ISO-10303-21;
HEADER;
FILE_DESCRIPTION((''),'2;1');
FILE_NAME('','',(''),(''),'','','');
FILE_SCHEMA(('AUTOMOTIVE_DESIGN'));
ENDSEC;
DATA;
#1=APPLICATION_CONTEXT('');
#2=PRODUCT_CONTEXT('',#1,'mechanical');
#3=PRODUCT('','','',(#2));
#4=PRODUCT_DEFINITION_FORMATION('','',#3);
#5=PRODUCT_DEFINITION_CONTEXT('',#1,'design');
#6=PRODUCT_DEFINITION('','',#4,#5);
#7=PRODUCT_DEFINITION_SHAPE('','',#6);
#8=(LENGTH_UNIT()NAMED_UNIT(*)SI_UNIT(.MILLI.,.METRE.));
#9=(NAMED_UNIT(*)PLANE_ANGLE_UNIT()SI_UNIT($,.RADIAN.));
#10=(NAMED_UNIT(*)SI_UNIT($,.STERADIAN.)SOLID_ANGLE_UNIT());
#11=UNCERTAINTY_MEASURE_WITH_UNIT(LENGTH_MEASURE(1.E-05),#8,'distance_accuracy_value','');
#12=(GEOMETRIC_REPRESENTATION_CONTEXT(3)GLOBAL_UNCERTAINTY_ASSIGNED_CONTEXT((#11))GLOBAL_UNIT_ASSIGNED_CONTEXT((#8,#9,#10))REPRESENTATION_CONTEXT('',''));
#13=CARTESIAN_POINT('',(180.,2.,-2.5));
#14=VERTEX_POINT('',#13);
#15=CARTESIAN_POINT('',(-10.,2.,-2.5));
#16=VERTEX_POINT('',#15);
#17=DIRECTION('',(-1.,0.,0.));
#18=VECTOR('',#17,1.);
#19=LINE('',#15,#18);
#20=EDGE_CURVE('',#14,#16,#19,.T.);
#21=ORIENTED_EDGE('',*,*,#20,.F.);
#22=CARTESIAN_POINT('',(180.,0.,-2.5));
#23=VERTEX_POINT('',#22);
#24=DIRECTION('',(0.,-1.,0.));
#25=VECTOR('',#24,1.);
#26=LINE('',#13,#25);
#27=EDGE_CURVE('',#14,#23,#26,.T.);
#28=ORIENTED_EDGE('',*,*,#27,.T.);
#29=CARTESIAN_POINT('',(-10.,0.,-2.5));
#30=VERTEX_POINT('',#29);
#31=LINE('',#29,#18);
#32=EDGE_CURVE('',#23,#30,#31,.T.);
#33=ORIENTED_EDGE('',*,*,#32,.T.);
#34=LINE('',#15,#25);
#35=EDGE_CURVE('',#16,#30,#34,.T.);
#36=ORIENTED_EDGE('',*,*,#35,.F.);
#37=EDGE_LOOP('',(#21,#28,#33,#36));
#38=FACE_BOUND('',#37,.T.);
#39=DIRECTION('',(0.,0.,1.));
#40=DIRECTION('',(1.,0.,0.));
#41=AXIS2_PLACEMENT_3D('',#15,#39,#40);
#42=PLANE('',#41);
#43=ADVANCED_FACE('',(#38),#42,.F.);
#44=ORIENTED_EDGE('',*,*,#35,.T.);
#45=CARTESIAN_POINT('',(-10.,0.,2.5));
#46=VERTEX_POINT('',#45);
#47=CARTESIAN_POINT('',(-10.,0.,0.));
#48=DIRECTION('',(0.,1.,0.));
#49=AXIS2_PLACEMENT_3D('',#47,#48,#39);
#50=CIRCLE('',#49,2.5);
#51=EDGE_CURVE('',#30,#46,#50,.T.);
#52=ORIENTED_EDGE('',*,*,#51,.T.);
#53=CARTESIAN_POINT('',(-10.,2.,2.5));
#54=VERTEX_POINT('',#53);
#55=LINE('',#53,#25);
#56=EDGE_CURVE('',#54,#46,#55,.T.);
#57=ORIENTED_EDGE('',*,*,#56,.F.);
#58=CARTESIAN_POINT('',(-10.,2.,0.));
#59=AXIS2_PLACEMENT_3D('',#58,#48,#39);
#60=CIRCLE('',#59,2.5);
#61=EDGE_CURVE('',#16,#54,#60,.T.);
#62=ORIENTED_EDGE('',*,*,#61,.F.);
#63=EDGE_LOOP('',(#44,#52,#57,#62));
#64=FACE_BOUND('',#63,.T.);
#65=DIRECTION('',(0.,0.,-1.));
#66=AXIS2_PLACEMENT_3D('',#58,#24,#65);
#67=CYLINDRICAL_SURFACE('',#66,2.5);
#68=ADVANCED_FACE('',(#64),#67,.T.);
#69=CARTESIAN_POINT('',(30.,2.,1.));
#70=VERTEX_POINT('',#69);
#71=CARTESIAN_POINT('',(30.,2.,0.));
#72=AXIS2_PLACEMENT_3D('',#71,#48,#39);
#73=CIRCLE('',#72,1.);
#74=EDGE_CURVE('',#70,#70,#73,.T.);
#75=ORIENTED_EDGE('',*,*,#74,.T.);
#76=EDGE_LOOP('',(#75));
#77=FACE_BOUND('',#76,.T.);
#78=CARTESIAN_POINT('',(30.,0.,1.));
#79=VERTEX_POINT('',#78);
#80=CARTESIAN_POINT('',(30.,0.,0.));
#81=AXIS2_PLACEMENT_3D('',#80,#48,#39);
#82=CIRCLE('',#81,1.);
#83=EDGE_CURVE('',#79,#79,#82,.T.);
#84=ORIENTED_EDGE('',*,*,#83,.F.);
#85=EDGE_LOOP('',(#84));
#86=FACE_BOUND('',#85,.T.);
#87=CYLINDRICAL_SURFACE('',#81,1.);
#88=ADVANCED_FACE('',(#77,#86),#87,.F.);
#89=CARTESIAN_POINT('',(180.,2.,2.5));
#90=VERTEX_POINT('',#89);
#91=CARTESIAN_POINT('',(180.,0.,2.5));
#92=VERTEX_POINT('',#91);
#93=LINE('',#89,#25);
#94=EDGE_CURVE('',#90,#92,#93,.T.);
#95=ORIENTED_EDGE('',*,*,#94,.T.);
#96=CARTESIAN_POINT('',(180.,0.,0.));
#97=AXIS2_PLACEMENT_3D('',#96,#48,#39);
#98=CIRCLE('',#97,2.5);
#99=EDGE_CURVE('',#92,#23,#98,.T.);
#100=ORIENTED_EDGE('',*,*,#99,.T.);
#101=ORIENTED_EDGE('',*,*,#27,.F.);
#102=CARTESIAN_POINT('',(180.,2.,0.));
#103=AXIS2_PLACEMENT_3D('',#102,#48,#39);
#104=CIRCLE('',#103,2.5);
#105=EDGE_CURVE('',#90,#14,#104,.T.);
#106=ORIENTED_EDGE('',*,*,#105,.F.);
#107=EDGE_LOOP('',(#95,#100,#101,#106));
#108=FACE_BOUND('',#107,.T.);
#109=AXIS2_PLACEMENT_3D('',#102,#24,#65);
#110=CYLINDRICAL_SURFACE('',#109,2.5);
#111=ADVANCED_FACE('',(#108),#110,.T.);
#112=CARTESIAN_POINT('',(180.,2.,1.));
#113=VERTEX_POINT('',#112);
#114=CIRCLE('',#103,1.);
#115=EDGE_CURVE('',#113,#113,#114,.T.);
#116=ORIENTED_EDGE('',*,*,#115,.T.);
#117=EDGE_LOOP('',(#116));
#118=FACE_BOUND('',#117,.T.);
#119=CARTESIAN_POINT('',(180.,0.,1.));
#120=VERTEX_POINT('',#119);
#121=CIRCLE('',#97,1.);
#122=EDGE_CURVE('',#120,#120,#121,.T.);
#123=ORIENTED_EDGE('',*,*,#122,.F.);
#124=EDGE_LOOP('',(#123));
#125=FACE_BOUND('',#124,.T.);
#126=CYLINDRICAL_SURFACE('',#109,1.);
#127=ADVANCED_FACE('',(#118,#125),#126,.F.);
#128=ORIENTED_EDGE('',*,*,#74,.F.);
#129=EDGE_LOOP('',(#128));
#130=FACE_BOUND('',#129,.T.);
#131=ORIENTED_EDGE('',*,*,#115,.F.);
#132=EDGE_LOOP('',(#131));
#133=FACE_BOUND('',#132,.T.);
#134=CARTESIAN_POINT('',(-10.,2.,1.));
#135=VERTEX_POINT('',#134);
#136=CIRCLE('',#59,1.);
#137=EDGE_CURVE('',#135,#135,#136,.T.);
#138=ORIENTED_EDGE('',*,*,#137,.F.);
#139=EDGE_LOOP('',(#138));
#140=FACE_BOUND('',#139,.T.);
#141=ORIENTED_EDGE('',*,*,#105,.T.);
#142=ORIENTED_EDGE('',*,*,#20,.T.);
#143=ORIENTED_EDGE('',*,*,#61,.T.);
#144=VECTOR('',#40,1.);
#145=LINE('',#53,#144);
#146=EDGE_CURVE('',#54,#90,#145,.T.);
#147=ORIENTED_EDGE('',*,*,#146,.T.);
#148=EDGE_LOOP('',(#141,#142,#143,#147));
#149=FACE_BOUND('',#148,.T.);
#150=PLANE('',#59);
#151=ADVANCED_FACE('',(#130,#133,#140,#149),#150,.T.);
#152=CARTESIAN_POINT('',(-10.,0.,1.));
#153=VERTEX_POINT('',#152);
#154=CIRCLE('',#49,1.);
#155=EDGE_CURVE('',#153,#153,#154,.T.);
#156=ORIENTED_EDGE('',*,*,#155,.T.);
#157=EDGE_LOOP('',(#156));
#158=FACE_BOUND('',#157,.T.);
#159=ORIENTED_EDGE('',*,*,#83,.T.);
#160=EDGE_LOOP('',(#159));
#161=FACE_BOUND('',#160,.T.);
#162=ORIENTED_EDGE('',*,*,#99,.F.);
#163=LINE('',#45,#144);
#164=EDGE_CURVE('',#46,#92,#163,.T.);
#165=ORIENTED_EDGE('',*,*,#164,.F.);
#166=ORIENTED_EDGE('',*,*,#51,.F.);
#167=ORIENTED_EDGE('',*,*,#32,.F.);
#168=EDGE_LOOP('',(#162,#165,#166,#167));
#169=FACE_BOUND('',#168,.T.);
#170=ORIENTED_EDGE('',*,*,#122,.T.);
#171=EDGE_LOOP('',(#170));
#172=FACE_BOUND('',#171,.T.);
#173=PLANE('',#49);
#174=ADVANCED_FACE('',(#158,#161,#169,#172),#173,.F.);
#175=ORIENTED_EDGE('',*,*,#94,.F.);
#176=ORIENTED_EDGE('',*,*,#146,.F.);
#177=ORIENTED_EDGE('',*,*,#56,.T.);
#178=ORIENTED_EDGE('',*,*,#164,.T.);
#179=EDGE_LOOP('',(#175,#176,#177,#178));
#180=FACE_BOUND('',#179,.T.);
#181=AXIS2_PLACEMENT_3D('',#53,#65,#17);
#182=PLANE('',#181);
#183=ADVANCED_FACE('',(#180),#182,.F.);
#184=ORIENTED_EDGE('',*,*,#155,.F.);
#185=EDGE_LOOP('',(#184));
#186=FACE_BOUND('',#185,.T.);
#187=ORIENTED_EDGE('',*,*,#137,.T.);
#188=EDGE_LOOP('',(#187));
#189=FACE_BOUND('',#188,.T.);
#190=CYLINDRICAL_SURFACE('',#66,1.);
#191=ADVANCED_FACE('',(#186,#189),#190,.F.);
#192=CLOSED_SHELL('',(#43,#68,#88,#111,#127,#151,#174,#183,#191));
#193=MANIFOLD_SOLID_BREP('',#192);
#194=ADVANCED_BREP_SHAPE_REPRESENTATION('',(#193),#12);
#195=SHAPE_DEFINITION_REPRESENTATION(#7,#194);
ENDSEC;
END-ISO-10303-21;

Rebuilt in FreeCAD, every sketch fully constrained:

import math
import FreeCAD as App
import Part
import Sketcher

V = App.Vector

doc = App.newDocument("Part")
body = doc.addObject("PartDesign::Body", "Body")

# Sketch on XZ plane
sketch1 = doc.addObject("Sketcher::SketchObject", "Sketch")
body.addObject(sketch1)
sketch1.AttachmentSupport = (doc.XZ_Plane, [""])
sketch1.MapMode = "FlatFace"
sketch1.addGeometry([
    Part.LineSegment(V(180, -2.5, 0), V(-10, -2.5, 0)),  # 0
    Part.ArcOfCircle(Part.Circle(V(-10, 0, 0), V(0, 0, 1), 2.5), math.radians(90), math.radians(270)),  # 1
    Part.LineSegment(V(-10, 2.5, 0), V(180, 2.5, 0)),  # 2
    Part.ArcOfCircle(Part.Circle(V(180, 0, 0), V(0, 0, 1), 2.5), math.radians(-90), math.radians(90)),  # 3
    Part.Circle(V(180, 0, 0), V(0, 0, 1), 1),  # 4
    Part.Circle(V(-10, 0, 0), V(0, 0, 1), 1),  # 5
], False)
sketch1.addConstraint([
    Sketcher.Constraint("Tangent", 0, 2, 1, 2),
    Sketcher.Constraint("Tangent", 1, 1, 2, 1),
    Sketcher.Constraint("Tangent", 2, 2, 3, 2),
    Sketcher.Constraint("Tangent", 3, 1, 0, 1),
    Sketcher.Constraint("Horizontal", 0),
    Sketcher.Constraint("Horizontal", 2),
    Sketcher.Constraint("Coincident", 4, 3, 3, 3),
    Sketcher.Constraint("Coincident", 5, 3, 1, 3),
    Sketcher.Constraint("Equal", 4, 5),
    Sketcher.Constraint("PointOnObject", 1, 3, -1),
    Sketcher.Constraint("Diameter", 4, 2.0),
    Sketcher.Constraint("Radius", 1, 2.5),
    Sketcher.Constraint("DistanceX", 0, 2, 0, 1, 190.0),
    Sketcher.Constraint("DistanceX", 1, 3, -1, 1, 10.0),
])
pad1 = doc.addObject("PartDesign::Pad", "Pad")
body.addObject(pad1)
pad1.Profile = sketch1
pad1.Length = 2
pad1.Reversed = True

# Sketch on XZ plane
sketch2 = doc.addObject("Sketcher::SketchObject", "Sketch001")
body.addObject(sketch2)
sketch2.AttachmentSupport = (doc.XZ_Plane, [""])
sketch2.MapMode = "FlatFace"
sketch2.AttachmentOffset = App.Placement(V(0, 0, -2), App.Rotation())
sketch2.addGeometry(Part.Circle(V(30, 0, 0), V(0, 0, 1), 1), False)
sketch2.addConstraint([
    Sketcher.Constraint("PointOnObject", 0, 3, -1),
    Sketcher.Constraint("Diameter", 0, 2.0),
    Sketcher.Constraint("DistanceX", -1, 1, 0, 3, 30.0),
])
pocket1 = doc.addObject("PartDesign::Pocket", "Pocket")
body.addObject(pocket1)
pocket1.Profile = sketch2
pocket1.Type = "ThroughAll"
pocket1.Reversed = True

doc.recompute()
